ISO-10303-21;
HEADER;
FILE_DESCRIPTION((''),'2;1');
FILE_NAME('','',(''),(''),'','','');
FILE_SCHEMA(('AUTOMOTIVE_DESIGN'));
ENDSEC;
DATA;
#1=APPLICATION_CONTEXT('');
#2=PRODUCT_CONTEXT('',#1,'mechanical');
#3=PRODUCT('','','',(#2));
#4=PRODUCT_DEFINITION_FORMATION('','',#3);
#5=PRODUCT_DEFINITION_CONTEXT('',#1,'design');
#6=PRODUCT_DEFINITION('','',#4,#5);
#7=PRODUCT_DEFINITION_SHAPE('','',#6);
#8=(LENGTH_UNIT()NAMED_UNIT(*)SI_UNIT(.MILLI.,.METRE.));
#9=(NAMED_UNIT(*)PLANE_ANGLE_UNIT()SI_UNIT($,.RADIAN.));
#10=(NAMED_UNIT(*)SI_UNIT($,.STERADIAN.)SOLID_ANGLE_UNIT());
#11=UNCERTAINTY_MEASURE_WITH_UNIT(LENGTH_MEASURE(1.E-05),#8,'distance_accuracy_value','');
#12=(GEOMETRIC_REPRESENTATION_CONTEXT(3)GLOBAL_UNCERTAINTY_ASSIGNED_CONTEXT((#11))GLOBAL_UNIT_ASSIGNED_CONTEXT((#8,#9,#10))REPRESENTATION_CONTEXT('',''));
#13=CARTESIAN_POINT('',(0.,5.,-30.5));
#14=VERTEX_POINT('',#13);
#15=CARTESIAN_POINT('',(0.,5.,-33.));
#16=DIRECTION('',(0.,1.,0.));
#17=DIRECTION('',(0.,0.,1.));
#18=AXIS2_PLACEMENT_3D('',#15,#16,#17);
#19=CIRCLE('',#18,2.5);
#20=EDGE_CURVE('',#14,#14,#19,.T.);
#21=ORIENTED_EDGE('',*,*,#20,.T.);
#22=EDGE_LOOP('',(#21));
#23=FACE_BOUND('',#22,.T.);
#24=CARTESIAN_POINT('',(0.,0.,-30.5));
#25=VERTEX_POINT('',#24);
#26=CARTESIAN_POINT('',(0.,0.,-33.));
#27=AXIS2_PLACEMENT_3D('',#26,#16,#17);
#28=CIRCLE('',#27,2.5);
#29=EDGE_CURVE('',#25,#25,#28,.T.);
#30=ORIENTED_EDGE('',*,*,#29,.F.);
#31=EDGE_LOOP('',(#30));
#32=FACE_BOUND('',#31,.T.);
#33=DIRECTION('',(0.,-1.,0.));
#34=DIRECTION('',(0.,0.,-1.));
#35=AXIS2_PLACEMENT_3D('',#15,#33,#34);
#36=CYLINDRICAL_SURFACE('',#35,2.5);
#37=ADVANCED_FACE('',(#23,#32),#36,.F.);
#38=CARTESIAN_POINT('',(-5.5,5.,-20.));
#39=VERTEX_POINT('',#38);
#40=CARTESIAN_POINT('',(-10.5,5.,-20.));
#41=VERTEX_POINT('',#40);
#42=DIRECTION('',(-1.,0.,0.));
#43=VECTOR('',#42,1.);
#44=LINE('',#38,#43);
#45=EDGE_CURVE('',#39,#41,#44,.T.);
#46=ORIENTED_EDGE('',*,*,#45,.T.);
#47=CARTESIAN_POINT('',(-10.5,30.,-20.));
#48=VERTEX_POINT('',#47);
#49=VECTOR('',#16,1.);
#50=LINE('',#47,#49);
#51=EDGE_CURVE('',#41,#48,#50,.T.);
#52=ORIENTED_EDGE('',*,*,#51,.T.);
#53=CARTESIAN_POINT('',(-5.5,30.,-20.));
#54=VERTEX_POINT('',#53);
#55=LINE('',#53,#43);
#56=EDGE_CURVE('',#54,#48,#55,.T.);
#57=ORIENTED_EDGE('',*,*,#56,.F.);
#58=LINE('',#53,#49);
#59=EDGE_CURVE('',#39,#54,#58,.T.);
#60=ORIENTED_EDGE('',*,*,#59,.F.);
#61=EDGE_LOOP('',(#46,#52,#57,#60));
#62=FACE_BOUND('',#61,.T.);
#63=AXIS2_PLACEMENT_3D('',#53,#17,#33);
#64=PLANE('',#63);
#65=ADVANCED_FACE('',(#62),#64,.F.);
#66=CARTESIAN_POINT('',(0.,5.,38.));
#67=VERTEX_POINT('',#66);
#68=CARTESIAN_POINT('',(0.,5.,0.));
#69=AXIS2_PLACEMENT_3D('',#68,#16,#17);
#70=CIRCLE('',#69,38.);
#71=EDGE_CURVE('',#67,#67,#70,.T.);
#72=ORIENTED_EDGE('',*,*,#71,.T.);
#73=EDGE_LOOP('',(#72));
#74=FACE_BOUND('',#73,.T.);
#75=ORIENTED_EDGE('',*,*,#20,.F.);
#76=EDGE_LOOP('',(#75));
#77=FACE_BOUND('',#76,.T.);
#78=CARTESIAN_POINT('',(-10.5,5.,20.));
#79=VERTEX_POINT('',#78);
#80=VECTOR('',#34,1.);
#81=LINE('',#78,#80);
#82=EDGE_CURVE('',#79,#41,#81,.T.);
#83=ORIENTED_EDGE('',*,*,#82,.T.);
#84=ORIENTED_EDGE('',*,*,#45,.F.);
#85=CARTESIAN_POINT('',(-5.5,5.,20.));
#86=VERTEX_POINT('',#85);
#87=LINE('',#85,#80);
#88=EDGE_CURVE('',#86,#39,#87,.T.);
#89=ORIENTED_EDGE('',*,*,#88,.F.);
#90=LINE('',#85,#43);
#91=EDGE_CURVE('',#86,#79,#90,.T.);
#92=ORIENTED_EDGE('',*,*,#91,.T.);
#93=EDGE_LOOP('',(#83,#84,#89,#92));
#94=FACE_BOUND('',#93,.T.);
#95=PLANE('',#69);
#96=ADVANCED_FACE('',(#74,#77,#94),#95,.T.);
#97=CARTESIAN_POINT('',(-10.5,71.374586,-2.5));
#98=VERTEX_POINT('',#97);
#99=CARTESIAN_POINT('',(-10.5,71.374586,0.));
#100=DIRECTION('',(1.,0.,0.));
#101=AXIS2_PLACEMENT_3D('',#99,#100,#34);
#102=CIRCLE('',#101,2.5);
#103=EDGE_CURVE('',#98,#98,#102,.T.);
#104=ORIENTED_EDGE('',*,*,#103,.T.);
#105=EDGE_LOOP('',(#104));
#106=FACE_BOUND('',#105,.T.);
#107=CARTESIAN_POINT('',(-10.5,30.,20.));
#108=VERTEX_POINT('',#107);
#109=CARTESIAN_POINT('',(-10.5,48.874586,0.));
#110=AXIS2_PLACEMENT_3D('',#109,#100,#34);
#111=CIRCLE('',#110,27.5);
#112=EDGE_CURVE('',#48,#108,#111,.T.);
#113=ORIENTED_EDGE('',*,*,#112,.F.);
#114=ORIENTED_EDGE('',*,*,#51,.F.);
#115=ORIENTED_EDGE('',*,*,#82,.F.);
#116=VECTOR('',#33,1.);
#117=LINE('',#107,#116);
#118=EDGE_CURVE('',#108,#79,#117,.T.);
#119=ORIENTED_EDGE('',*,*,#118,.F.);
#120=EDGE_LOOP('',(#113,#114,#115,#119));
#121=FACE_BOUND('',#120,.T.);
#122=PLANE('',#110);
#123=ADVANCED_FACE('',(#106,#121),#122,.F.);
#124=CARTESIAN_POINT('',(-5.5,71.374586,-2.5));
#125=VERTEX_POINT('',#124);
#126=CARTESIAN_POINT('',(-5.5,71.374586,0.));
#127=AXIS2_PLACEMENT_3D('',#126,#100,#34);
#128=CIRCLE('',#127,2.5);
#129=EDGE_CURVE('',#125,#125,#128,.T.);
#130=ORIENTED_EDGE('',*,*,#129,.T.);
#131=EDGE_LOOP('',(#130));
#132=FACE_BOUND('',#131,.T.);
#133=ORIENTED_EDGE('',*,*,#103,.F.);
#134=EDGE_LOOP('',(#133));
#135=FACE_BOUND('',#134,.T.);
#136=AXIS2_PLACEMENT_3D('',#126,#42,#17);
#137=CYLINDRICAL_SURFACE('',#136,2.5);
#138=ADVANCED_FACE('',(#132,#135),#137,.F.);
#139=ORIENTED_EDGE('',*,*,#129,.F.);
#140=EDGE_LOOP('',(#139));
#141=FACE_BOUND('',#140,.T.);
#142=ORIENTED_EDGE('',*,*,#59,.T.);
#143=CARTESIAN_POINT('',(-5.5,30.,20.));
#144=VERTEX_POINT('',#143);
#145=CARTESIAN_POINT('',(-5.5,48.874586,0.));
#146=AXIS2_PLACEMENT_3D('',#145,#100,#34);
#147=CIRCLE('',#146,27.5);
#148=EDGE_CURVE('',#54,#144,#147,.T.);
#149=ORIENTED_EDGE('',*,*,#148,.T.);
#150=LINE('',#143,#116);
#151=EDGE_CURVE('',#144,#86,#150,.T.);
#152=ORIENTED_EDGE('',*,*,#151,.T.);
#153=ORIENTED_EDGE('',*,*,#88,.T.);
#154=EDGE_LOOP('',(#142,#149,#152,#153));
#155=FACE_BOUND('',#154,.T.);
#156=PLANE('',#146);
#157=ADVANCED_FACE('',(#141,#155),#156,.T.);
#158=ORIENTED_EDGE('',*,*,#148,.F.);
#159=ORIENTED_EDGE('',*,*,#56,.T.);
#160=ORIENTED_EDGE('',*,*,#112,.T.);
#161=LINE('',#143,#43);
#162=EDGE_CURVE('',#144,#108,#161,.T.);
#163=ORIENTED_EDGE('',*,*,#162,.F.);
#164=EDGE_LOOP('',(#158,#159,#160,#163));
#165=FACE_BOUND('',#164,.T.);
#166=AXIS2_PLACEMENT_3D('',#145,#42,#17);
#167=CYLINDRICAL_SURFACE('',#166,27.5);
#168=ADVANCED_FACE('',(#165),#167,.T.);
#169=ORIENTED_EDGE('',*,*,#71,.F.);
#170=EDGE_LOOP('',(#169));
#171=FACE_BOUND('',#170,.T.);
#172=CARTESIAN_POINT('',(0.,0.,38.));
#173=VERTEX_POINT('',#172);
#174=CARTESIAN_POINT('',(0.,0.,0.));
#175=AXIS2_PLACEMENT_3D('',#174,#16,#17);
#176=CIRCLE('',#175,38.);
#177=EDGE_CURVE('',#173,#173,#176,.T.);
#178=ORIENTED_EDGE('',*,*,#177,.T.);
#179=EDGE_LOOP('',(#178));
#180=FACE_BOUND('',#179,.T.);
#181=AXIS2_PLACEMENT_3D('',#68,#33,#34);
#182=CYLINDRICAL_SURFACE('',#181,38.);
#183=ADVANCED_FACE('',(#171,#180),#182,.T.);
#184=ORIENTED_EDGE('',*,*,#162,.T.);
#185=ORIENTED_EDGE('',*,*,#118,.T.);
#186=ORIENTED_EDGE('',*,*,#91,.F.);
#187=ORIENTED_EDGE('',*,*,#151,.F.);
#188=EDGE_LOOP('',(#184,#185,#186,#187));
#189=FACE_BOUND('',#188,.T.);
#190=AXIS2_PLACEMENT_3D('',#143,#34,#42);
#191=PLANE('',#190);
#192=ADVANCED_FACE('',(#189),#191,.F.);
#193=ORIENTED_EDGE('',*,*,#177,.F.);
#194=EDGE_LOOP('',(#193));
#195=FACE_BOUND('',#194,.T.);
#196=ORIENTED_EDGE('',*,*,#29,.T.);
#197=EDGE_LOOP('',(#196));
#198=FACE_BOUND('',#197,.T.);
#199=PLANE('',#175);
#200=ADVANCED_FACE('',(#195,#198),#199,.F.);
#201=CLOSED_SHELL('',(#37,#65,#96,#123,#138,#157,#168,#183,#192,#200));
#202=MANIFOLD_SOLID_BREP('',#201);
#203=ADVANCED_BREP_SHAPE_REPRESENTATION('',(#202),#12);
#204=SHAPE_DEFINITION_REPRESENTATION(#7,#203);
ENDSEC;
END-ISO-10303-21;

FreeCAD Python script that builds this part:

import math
import FreeCAD as App
import Part
import Sketcher

V = App.Vector
Q = App.Units.Quantity

doc = App.newDocument("Part")
body = doc.addObject("PartDesign::Body", "Body")

# Sketch on XZ plane
sketch1 = body.newObject("Sketcher::SketchObject", "Sketch")
sketch1.AttachmentSupport = (doc.getObject("XZ_Plane"), [""])
sketch1.MapMode = "FlatFace"
sketch1.addGeometry([
    Part.Circle(V(0, 0, 0), V(0, 0, 1), 38),
    Part.Circle(V(0, -33, 0), V(0, 0, 1), 2.5),
], False)
sketch1.addConstraint([
    Sketcher.Constraint("Coincident", 0, 3, -1, 1),
    Sketcher.Constraint("PointOnObject", 1, 3, -2),
    Sketcher.Constraint("Diameter", 0, Q("76 mm")),
    Sketcher.Constraint("Diameter", 1, Q("5 mm")),
    Sketcher.Constraint("DistanceY", 1, 3, -1, 1, Q("33 mm")),
])
pad1 = body.newObject("PartDesign::Pad", "Pad")
pad1.Profile = sketch1
pad1.Length = 5
pad1.Reversed = True

# Sketch on YZ plane
sketch2 = body.newObject("Sketcher::SketchObject", "Sketch001")
sketch2.AttachmentSupport = (doc.getObject("YZ_Plane"), [""])
sketch2.MapMode = "FlatFace"
sketch2.AttachmentOffset = App.Placement(V(0, 0, -10.5), App.Rotation())
sketch2.addGeometry([
    Part.LineSegment(V(30, 20, 0), V(5, 20, 0)),  # 0
    Part.LineSegment(V(5, 20, 0), V(5, -20, 0)),  # 1
    Part.LineSegment(V(5, -20, 0), V(30, -20, 0)),  # 2
    Part.ArcOfCircle(Part.Circle(V(48.9, 0, 0), V(0, 0, 1), 27.5), math.radians(-133), math.radians(133)),  # 3
    Part.Circle(V(71.4, 0, 0), V(0, 0, 1), 2.5),  # 4
], False)
sketch2.addConstraint([
    Sketcher.Constraint("Coincident", 0, 2, 1, 1),
    Sketcher.Constraint("Coincident", 1, 2, 2, 1),
    Sketcher.Constraint("Coincident", 2, 2, 3, 1),
    Sketcher.Constraint("Coincident", 3, 2, 0, 1),
    Sketcher.Constraint("Horizontal", 0),
    Sketcher.Constraint("Vertical", 1),
    Sketcher.Constraint("Horizontal", 2),
    Sketcher.Constraint("Symmetric", 2, 2, 3, 2, -1),
    Sketcher.Constraint("PointOnObject", 4, 3, -1),
    Sketcher.Constraint("Diameter", 4, Q("5 mm")),
    Sketcher.Constraint("Radius", 3, Q("27.5 mm")),
    Sketcher.Constraint("DistanceX", 0, 2, 0, 1, Q("25 mm")),
    Sketcher.Constraint("DistanceY", 1, 2, 1, 1, Q("40 mm")),
    Sketcher.Constraint("DistanceX", -1, 1, 0, 2, Q("5 mm")),
    Sketcher.Constraint("DistanceX", 3, 3, 4, 3, Q("22.5 mm")),
])
pad2 = body.newObject("PartDesign::Pad", "Pad001")
pad2.Profile = sketch2
pad2.Length = 5

doc.recompute()
